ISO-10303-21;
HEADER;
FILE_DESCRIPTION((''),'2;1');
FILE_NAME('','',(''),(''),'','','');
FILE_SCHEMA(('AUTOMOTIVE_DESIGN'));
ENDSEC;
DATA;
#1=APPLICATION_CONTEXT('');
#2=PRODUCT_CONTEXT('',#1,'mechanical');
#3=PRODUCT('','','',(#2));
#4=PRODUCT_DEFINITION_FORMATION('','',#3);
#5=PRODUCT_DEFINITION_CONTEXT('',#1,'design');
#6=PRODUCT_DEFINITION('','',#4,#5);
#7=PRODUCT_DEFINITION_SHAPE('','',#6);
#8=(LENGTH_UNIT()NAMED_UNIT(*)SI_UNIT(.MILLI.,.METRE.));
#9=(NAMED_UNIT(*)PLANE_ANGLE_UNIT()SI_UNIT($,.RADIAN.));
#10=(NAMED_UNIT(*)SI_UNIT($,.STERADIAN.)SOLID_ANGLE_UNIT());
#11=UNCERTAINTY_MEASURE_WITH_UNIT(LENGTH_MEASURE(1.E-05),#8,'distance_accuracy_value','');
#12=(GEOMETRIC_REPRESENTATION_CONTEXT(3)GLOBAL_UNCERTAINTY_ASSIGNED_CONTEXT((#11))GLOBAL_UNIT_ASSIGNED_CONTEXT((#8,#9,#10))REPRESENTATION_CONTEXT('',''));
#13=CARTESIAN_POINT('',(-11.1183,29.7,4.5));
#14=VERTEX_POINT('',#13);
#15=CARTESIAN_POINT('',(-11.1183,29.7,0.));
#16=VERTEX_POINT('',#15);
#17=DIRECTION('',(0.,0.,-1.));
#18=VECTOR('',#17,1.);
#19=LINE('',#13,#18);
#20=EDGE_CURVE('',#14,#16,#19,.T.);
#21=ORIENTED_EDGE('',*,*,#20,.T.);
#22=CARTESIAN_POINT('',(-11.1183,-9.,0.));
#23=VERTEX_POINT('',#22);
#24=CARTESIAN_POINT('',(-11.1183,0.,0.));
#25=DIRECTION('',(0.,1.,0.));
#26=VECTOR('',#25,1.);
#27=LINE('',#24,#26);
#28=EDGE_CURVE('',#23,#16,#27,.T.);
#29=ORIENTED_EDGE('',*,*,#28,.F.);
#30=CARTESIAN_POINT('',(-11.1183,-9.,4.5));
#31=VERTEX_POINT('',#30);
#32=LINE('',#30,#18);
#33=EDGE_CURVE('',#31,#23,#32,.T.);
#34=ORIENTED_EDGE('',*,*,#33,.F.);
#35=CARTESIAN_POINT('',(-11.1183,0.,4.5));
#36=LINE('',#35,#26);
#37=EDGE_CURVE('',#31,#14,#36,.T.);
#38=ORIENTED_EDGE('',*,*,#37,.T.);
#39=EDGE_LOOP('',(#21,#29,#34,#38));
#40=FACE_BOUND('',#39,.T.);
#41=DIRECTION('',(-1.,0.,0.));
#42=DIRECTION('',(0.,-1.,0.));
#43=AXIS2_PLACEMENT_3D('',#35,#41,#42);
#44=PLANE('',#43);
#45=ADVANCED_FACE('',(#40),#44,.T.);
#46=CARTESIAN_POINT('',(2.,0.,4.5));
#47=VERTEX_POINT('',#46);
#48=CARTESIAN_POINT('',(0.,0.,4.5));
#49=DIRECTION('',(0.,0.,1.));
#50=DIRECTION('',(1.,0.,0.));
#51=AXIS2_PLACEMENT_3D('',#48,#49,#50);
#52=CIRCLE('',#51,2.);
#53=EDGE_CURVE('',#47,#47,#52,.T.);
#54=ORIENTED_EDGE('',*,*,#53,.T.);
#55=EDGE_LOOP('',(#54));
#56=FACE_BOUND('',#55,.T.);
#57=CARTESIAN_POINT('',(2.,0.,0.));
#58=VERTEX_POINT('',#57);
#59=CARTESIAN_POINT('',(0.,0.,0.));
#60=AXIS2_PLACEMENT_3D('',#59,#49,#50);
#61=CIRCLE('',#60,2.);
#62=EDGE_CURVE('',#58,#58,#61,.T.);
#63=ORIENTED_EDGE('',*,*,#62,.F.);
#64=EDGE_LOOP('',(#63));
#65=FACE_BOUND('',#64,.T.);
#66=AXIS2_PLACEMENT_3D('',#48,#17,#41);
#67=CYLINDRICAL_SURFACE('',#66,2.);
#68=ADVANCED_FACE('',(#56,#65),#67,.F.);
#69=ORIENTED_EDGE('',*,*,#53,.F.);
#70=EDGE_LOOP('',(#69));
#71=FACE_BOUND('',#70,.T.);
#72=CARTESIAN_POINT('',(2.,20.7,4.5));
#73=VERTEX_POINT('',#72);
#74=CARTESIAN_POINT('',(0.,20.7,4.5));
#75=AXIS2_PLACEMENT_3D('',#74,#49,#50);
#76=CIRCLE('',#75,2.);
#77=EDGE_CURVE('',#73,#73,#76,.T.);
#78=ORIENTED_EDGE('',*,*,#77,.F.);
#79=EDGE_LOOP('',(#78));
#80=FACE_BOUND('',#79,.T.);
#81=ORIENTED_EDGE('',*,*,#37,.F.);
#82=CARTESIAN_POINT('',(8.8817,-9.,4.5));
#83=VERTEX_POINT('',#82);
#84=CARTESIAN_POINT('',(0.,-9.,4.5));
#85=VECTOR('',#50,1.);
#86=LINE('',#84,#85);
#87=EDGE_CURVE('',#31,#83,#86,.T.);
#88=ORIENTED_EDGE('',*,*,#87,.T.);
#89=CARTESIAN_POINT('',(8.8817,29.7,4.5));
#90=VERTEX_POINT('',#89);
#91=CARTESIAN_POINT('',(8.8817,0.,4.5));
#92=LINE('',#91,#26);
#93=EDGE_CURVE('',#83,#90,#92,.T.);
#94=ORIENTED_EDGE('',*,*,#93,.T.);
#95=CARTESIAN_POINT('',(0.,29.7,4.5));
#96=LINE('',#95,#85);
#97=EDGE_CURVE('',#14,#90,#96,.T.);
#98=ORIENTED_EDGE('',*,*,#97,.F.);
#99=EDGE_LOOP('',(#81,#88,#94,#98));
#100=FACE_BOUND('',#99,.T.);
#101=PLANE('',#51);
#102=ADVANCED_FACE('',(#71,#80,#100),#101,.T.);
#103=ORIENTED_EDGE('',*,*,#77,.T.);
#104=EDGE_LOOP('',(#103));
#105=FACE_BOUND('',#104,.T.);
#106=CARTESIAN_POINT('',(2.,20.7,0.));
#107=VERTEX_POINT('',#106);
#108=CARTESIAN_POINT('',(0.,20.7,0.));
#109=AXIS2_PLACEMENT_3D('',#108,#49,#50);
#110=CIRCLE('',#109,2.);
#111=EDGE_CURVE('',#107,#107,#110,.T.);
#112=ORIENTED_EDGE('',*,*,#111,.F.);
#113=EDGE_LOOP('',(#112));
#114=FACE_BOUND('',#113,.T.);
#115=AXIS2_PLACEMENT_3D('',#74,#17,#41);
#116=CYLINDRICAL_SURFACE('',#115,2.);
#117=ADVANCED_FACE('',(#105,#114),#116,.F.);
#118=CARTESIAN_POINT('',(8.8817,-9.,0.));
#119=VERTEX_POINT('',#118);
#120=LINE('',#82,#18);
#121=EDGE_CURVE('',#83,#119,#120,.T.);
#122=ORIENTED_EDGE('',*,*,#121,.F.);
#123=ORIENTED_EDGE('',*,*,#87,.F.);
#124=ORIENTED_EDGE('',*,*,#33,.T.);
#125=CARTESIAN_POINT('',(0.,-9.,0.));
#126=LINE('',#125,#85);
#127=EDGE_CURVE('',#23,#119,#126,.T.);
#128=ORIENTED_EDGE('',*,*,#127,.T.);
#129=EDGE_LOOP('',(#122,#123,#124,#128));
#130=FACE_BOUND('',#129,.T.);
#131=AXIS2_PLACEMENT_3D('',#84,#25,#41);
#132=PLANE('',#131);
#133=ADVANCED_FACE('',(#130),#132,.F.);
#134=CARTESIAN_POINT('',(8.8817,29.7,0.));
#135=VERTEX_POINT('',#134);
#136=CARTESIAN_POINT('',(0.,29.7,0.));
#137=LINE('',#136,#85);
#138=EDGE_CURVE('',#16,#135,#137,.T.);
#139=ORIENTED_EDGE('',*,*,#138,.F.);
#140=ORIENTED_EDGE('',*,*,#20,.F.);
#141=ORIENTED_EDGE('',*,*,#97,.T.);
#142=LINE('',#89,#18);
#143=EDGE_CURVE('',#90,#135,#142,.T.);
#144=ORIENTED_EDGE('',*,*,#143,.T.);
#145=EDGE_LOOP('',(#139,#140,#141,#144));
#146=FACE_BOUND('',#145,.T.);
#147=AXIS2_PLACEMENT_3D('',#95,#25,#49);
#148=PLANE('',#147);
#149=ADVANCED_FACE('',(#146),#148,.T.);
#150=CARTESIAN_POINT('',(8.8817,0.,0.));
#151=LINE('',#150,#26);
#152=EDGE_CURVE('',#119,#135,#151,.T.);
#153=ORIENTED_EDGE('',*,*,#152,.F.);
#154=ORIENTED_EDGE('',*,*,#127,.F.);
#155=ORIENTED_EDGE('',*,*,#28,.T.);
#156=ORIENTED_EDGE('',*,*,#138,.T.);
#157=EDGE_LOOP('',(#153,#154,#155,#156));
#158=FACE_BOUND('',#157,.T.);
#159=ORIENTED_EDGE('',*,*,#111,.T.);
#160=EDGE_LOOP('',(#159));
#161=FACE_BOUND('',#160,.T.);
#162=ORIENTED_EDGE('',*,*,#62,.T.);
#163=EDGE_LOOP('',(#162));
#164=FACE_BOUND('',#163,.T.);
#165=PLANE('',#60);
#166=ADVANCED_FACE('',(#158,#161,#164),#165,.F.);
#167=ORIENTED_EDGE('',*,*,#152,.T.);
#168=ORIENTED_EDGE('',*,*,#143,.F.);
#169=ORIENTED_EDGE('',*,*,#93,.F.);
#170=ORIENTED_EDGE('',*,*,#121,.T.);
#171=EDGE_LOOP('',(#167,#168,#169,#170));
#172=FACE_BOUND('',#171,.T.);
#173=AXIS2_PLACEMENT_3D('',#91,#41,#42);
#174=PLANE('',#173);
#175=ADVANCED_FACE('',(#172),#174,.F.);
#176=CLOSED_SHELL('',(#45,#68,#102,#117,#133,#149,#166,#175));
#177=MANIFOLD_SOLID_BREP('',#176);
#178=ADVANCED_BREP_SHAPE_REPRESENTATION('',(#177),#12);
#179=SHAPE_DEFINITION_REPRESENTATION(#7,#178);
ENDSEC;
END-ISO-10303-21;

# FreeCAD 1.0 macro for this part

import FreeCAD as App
import Part
import Sketcher
Q = App.Units.Quantity


def add_polygon(sketch, points):
    """Adds a closed chain of lines whose ends are joined by coincident constraints."""
    first, n = sketch.GeometryCount, len(points)
    for a, b in zip(points, points[1:] + points[:1]):
        sketch.addGeometry(Part.LineSegment(App.Vector(*a, 0), App.Vector(*b, 0)), False)
    for i in range(n):
        sketch.addConstraint(Sketcher.Constraint("Coincident", first + i, 2, first + (i + 1) % n, 1))

doc = App.newDocument("Part")
body = doc.addObject("PartDesign::Body", "Body")

# Sketch on XY plane
sketch1 = body.newObject("Sketcher::SketchObject", "Sketch")
sketch1.AttachmentSupport = (doc.getObject("XY_Plane"), [""])
sketch1.MapMode = "FlatFace"
add_polygon(sketch1, [(-11.1, 29.7), (-11.1, -9), (8.9, -9), (8.9, 29.7)])  # lines 0-3
sketch1.addGeometry(Part.Circle(App.Vector(0, 0, 0), App.Vector(0, 0, 1), 2), False)  # 4
sketch1.addGeometry(Part.Circle(App.Vector(0, 20.7, 0), App.Vector(0, 0, 1), 2), False)  # 5
sketch1.addConstraint([
    Sketcher.Constraint("Vertical", 0),
    Sketcher.Constraint("Horizontal", 1),
    Sketcher.Constraint("Vertical", 2),
    Sketcher.Constraint("Horizontal", 3),
    Sketcher.Constraint("Coincident", 4, 3, -1, 1),
    Sketcher.Constraint("Equal", 4, 5),
    Sketcher.Constraint("PointOnObject", 5, 3, -2),
    Sketcher.Constraint("Diameter", 4, Q("4 mm")),
    Sketcher.Constraint("DistanceX", 1, 1, 1, 2, Q("20 mm")),
    Sketcher.Constraint("DistanceY", 0, 2, 0, 1, Q("38.7 mm")),
    Sketcher.Constraint("DistanceY", 0, 2, -1, 1, Q("9 mm")),
    Sketcher.Constraint("DistanceY", 5, 3, 2, 2, Q("9 mm")),
    Sketcher.Constraint("DistanceX", 0, 2, -1, 1, Q("11.1183 mm")),
])
pad1 = body.newObject("PartDesign::Pad", "Pad")
pad1.Profile = sketch1
pad1.Length = 4.5

doc.recompute()
